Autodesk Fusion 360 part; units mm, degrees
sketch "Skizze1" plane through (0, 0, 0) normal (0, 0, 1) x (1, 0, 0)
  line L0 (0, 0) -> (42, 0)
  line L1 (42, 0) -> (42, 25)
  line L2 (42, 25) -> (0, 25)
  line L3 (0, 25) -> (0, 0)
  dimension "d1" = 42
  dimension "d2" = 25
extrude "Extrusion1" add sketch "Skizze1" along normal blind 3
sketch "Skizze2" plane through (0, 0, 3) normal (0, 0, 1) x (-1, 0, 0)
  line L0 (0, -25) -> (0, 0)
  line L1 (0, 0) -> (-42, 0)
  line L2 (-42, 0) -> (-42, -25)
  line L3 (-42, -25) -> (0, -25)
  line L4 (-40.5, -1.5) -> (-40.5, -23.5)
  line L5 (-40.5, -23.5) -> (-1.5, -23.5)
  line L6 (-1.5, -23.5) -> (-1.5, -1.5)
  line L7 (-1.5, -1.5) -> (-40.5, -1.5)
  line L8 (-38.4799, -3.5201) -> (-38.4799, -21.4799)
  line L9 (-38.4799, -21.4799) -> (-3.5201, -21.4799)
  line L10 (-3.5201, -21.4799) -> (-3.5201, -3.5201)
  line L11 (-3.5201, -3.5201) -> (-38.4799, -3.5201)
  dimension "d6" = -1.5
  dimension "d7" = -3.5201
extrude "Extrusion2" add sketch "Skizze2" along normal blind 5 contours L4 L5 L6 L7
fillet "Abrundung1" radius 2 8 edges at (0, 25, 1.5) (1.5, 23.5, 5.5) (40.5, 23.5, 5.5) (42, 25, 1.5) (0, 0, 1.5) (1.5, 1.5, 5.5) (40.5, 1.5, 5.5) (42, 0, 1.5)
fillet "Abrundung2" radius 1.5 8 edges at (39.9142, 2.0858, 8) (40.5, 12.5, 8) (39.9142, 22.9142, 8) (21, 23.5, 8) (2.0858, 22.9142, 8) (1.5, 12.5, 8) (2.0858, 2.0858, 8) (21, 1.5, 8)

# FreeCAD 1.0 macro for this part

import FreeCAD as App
import Part
import Sketcher
from FreeCAD import Vector


def edges_at(feature, points):
    """Names of the edges that pass closest to the given points."""
    edges = feature.Shape.Edges
    near = lambda p: min(range(len(edges)), key=lambda i: edges[i].distToShape(Part.Vertex(*p))[0])
    return sorted({f"Edge{near(p) + 1}" for p in points})

doc = App.newDocument("Part")
params = doc.addObject("Spreadsheet::Sheet", "Params")
for row, (alias, value) in enumerate([
    ("sketch1_width", "42 mm"),
    ("sketch1_height", "25 mm"),
    ("pad1_length", "3 mm"),
    ("sketch2_width", "39 mm"),
    ("sketch2_height", "22 mm"),
    ("pad2_length", "5 mm"),
    ("fillet_radius", "2 mm"),
    ("fillet2_radius", "1.5 mm"),
], start=1):
    params.set(f"A{row}", alias)
    params.set(f"B{row}", "=" + value)
    params.setAlias(f"B{row}", alias)

body = doc.addObject("PartDesign::Body", "Body")

# Sketch on XY plane
sketch1 = doc.addObject("Sketcher::SketchObject", "Sketch")
body.addObject(sketch1)
sketch1.AttachmentSupport = (doc.XY_Plane, [""])
sketch1.MapMode = "FlatFace"
sketch1.addGeometry(Part.LineSegment(Vector(0, 25, 0), Vector(0, 0, 0)), False)
sketch1.addGeometry(Part.LineSegment(Vector(0, 0, 0), Vector(42, 0, 0)), False)
sketch1.addGeometry(Part.LineSegment(Vector(42, 0, 0), Vector(42, 25, 0)), False)
sketch1.addGeometry(Part.LineSegment(Vector(42, 25, 0), Vector(0, 25, 0)), False)
sketch1.addConstraint(Sketcher.Constraint("Coincident", 0, 2, 1, 1))
sketch1.addConstraint(Sketcher.Constraint("Coincident", 1, 2, 2, 1))
sketch1.addConstraint(Sketcher.Constraint("Coincident", 2, 2, 3, 1))
sketch1.addConstraint(Sketcher.Constraint("Coincident", 3, 2, 0, 1))
sketch1.addConstraint(Sketcher.Constraint("Vertical", 0))
sketch1.addConstraint(Sketcher.Constraint("Horizontal", 1))
sketch1.addConstraint(Sketcher.Constraint("Vertical", 2))
sketch1.addConstraint(Sketcher.Constraint("Horizontal", 3))
sketch1.addConstraint(Sketcher.Constraint("Coincident", 0, 2, -1, 1))
sketch1.addConstraint(Sketcher.Constraint("DistanceX", 1, 1, 1, 2, 42.0))
sketch1.addConstraint(Sketcher.Constraint("DistanceY", 0, 2, 0, 1, 25.0))
sketch1.setExpression("Constraints[9]", "Params.sketch1_width")
sketch1.setExpression("Constraints[10]", "Params.sketch1_height")
pad1 = doc.addObject("PartDesign::Pad", "Pad")
body.addObject(pad1)
pad1.Profile = sketch1
pad1.setExpression("Length", "Params.pad1_length")

# Sketch on XY plane
sketch2 = doc.addObject("Sketcher::SketchObject", "Sketch001")
body.addObject(sketch2)
sketch2.AttachmentSupport = (doc.XY_Plane, [""])
sketch2.MapMode = "FlatFace"
sketch2.AttachmentOffset = App.Placement(Vector(0, 0, 3), App.Rotation())
sketch2.addGeometry(Part.LineSegment(Vector(2, 2, 0), Vector(40, 2, 0)), False)
sketch2.addGeometry(Part.LineSegment(Vector(40, 2, 0), Vector(40, 24, 0)), False)
sketch2.addGeometry(Part.LineSegment(Vector(40, 24, 0), Vector(2, 24, 0)), False)
sketch2.addGeometry(Part.LineSegment(Vector(2, 24, 0), Vector(2, 2, 0)), False)
sketch2.addGeometry(Part.LineSegment(Vector(38, 21, 0), Vector(38, 4, 0)), False)
sketch2.addGeometry(Part.LineSegment(Vector(38, 4, 0), Vector(4, 4, 0)), False)
sketch2.addGeometry(Part.LineSegment(Vector(4, 4, 0), Vector(4, 21, 0)), False)
sketch2.addGeometry(Part.LineSegment(Vector(4, 21, 0), Vector(38, 21, 0)), False)
sketch2.addConstraint(Sketcher.Constraint("Coincident", 0, 2, 1, 1))
sketch2.addConstraint(Sketcher.Constraint("Coincident", 1, 2, 2, 1))
sketch2.addConstraint(Sketcher.Constraint("Coincident", 2, 2, 3, 1))
sketch2.addConstraint(Sketcher.Constraint("Coincident", 3, 2, 0, 1))
sketch2.addConstraint(Sketcher.Constraint("Coincident", 4, 2, 5, 1))
sketch2.addConstraint(Sketcher.Constraint("Coincident", 5, 2, 6, 1))
sketch2.addConstraint(Sketcher.Constraint("Coincident", 6, 2, 7, 1))
sketch2.addConstraint(Sketcher.Constraint("Coincident", 7, 2, 4, 1))
sketch2.addConstraint(Sketcher.Constraint("Horizontal", 0))
sketch2.addConstraint(Sketcher.Constraint("Vertical", 1))
sketch2.addConstraint(Sketcher.Constraint("Horizontal", 2))
sketch2.addConstraint(Sketcher.Constraint("Vertical", 3))
sketch2.addConstraint(Sketcher.Constraint("Vertical", 4))
sketch2.addConstraint(Sketcher.Constraint("Horizontal", 5))
sketch2.addConstraint(Sketcher.Constraint("Vertical", 6))
sketch2.addConstraint(Sketcher.Constraint("Horizontal", 7))
sketch2.addConstraint(Sketcher.Constraint("DistanceY", -1, 1, 0, 2, 1.5))
sketch2.addConstraint(Sketcher.Constraint("DistanceX", -1, 1, 2, 2, 1.5))
sketch2.addConstraint(Sketcher.Constraint("DistanceX", 0, 1, 0, 2, 39.0))
sketch2.addConstraint(Sketcher.Constraint("DistanceY", 1, 1, 1, 2, 22.0))
sketch2.addConstraint(Sketcher.Constraint("DistanceY", -1, 1, 4, 2, 3.52))
sketch2.addConstraint(Sketcher.Constraint("DistanceX", -1, 1, 5, 2, 3.52))
sketch2.addConstraint(Sketcher.Constraint("DistanceX", -1, 1, 4, 2, 38.48))
sketch2.addConstraint(Sketcher.Constraint("DistanceY", -1, 1, 6, 2, 21.48))
sketch2.setExpression("Constraints[18]", "Params.sketch2_width")
sketch2.setExpression("Constraints[19]", "Params.sketch2_height")
pad2 = doc.addObject("PartDesign::Pad", "Pad001")
body.addObject(pad2)
pad2.Profile = sketch2
pad2.setExpression("Length", "Params.pad2_length")
doc.recompute()

fillet = doc.addObject("PartDesign::Fillet", "Fillet")
body.addObject(fillet)
fillet.Base = (pad2, edges_at(pad2, [
    (0, 25, 1.5),
    (1.5, 23.5, 5.5),
    (40.5, 23.5, 5.5),
    (42, 25, 1.5),
    (0, 0, 1.5),
    (1.5, 1.5, 5.5),
    (40.5, 1.5, 5.5),
    (42, 0, 1.5),
]))
fillet.setExpression("Radius", "Params.fillet_radius")
doc.recompute()

fillet2 = doc.addObject("PartDesign::Fillet", "Fillet001")
body.addObject(fillet2)
fillet2.Base = (fillet, edges_at(fillet, [
    (39.914, 2.086, 8),
    (40.5, 12.5, 8),
    (39.914, 22.914, 8),
    (21, 23.5, 8),
    (2.086, 22.914, 8),
    (1.5, 12.5, 8),
    (2.086, 2.086, 8),
    (21, 1.5, 8),
]))
fillet2.setExpression("Radius", "Params.fillet2_radius")

doc.recompute()
